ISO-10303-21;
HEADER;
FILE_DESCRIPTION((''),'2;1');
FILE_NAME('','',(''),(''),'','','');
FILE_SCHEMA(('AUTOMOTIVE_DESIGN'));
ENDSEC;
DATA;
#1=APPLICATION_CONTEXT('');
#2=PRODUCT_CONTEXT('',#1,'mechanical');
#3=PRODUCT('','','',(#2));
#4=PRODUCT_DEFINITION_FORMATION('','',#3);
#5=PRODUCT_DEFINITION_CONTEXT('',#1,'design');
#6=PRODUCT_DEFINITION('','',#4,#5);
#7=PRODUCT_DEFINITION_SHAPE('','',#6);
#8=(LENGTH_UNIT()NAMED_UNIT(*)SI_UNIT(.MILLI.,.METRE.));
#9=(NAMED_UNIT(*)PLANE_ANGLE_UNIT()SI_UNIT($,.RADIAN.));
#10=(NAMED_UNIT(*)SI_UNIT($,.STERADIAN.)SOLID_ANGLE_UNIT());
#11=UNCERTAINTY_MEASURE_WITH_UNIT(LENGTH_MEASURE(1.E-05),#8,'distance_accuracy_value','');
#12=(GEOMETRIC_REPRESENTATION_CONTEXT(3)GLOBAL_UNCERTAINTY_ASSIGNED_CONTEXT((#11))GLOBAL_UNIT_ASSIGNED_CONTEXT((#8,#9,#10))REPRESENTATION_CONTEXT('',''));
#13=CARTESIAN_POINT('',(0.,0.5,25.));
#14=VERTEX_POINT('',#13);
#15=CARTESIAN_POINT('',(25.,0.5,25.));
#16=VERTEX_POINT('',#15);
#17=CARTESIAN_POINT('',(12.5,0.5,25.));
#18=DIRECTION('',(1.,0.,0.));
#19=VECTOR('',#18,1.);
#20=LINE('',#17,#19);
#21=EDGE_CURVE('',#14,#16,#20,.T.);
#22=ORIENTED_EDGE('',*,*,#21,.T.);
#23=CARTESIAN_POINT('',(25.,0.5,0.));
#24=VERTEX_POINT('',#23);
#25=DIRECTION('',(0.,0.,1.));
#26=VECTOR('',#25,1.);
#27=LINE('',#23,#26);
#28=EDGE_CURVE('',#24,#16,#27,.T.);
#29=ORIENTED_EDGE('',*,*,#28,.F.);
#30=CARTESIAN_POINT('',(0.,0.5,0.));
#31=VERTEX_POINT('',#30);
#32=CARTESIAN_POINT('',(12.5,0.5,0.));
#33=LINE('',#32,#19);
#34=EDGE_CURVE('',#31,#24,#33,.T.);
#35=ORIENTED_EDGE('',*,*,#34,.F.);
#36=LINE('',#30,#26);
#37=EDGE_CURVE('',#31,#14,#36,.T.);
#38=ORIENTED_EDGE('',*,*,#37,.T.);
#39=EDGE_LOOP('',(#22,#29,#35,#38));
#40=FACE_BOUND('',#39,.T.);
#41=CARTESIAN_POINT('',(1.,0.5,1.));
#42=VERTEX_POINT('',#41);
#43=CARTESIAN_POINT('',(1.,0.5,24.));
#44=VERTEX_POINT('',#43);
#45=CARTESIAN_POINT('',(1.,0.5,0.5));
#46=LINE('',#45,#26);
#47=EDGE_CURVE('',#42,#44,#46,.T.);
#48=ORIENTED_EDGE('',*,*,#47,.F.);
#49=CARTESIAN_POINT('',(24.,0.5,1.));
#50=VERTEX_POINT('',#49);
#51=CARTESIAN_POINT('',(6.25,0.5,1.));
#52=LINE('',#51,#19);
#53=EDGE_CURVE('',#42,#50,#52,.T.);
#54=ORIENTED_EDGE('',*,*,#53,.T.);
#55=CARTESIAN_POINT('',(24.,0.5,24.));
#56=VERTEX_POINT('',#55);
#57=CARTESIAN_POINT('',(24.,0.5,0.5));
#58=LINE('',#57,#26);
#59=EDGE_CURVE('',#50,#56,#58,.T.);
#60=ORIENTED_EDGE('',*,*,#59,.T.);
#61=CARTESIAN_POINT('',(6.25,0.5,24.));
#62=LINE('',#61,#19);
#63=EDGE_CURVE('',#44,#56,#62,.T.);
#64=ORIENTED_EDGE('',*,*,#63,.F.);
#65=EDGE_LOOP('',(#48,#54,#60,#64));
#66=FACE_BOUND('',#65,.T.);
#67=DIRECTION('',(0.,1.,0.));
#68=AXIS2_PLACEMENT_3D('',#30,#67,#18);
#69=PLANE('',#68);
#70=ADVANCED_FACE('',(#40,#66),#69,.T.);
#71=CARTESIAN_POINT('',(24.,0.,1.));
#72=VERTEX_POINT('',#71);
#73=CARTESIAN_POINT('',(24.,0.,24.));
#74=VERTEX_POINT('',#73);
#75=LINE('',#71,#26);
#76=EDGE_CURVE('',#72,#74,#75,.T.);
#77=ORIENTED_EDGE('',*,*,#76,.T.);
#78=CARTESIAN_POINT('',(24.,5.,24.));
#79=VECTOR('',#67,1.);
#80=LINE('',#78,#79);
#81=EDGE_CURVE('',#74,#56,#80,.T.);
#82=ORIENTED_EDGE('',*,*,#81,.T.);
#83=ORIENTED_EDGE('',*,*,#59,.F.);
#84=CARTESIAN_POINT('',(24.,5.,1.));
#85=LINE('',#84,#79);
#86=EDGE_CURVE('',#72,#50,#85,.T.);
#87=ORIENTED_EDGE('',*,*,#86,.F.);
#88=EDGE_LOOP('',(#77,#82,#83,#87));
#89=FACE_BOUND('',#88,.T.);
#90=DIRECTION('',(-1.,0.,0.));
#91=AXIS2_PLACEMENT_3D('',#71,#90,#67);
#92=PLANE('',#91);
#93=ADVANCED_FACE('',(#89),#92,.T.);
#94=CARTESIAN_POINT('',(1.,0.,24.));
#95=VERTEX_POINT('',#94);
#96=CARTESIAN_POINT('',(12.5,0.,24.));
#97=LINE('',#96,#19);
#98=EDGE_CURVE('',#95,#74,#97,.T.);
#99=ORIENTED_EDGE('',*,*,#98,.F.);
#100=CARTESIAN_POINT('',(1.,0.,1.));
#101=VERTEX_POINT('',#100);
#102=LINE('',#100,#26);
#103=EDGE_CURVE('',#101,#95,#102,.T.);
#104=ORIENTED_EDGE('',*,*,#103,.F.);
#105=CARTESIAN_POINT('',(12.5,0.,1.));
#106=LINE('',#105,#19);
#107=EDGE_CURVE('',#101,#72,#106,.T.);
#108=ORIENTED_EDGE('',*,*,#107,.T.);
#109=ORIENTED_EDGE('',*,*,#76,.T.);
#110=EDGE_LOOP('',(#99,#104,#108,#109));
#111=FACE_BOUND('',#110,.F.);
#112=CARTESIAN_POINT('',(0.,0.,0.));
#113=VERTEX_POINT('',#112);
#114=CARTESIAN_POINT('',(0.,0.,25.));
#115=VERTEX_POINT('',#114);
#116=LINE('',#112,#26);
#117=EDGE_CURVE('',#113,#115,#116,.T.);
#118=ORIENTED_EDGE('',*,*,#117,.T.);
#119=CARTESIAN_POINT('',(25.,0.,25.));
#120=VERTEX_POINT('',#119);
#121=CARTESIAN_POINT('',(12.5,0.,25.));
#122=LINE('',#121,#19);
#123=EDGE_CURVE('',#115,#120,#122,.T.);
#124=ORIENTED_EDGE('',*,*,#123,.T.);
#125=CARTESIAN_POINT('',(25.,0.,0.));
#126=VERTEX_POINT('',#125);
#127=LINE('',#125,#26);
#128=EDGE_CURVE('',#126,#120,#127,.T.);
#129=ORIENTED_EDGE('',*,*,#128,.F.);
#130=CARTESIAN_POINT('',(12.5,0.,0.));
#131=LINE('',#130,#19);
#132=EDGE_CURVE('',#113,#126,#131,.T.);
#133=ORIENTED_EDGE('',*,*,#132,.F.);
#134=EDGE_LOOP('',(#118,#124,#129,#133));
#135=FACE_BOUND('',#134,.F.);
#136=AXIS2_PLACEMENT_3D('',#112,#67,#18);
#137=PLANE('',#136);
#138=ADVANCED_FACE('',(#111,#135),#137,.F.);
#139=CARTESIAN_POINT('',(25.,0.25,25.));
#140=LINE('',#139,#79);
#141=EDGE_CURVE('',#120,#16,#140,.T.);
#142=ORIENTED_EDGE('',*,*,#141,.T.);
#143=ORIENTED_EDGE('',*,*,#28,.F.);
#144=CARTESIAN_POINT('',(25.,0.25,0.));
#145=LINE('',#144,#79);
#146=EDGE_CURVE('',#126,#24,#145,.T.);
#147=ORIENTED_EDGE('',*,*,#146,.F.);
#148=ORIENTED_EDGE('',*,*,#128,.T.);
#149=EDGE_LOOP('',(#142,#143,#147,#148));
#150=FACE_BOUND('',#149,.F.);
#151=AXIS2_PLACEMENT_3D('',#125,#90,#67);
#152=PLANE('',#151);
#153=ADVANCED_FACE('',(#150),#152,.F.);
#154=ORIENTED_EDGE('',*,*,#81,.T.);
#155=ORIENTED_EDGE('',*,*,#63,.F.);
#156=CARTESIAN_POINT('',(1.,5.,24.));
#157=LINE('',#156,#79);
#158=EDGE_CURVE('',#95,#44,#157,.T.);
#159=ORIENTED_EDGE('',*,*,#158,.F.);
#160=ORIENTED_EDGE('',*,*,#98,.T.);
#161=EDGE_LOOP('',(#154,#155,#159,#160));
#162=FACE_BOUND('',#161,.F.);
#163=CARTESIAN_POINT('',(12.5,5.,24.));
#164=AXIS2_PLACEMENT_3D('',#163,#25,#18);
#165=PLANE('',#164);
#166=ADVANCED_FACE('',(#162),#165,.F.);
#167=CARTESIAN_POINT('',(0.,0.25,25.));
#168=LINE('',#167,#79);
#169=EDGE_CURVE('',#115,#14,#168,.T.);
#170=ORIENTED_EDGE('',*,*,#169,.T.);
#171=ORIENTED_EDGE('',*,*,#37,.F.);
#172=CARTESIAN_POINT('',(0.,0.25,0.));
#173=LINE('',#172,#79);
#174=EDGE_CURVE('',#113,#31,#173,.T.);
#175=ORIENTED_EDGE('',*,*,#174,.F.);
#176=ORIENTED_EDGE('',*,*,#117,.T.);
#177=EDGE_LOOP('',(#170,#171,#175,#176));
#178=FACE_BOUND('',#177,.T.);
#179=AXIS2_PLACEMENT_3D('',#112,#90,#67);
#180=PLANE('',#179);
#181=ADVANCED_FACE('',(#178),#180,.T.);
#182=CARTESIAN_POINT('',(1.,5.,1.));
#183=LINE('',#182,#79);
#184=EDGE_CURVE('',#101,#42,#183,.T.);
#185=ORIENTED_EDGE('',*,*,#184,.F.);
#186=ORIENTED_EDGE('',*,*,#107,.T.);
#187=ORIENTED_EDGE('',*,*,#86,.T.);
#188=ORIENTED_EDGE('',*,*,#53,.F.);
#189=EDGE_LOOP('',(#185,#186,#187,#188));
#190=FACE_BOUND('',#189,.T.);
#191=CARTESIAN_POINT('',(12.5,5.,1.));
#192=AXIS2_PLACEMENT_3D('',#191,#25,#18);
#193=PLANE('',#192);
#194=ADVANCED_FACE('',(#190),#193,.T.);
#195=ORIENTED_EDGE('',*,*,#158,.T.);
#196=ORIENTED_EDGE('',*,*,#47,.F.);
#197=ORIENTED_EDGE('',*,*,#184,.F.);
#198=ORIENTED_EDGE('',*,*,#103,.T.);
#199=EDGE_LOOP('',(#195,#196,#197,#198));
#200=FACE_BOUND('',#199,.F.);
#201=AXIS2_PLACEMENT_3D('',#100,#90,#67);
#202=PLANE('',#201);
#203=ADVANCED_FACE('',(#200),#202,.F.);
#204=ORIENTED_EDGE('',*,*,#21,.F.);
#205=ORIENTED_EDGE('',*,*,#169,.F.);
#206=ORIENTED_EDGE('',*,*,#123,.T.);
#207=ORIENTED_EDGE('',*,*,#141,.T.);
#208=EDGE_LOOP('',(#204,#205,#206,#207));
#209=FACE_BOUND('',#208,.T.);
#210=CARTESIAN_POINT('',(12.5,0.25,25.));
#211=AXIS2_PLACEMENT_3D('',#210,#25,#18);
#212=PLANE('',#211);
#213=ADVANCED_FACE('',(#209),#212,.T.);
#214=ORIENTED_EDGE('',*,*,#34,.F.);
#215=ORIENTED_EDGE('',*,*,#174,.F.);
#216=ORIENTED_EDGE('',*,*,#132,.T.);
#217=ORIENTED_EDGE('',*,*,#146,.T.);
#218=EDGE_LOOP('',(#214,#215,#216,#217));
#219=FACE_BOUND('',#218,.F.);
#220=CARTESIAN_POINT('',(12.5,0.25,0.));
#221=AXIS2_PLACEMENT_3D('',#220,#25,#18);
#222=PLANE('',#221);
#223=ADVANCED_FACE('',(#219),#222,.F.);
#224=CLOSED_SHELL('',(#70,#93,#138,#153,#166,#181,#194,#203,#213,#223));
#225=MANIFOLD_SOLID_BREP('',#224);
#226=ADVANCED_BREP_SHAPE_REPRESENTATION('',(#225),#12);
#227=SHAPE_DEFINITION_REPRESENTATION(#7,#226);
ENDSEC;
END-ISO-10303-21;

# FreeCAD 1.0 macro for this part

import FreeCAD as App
import Part
import Sketcher
Q = App.Units.Quantity


def add_polygon(sketch, points):
    """Adds a closed chain of lines whose ends are joined by coincident constraints."""
    first, n = sketch.GeometryCount, len(points)
    for a, b in zip(points, points[1:] + points[:1]):
        sketch.addGeometry(Part.LineSegment(App.Vector(*a, 0), App.Vector(*b, 0)), False)
    for i in range(n):
        sketch.addConstraint(Sketcher.Constraint("Coincident", first + i, 2, first + (i + 1) % n, 1))

doc = App.newDocument("Part")
params = doc.addObject("Spreadsheet::Sheet", "Params")
for row, (alias, value) in enumerate([
    ("sketch1_width", "23 mm"),
    ("sketch1_height", "10 mm"),
    ("pad1_length", "23 mm"),
    ("sketch2_width", "25 mm"),
    ("sketch2_height", "0.5 mm"),
    ("pad2_length", "25 mm"),
], start=1):
    params.set(f"A{row}", alias)
    params.set(f"B{row}", "=" + value)
    params.setAlias(f"B{row}", alias)

body = doc.addObject("PartDesign::Body", "Body")

sketch1 = body.newObject("Sketcher::SketchObject", "Sketch")
sketch1.AttachmentSupport = (doc.getObject("XY_Plane"), [""])
sketch1.MapMode = "FlatFace"
sketch1.AttachmentOffset = App.Placement(App.Vector(0, 0, 1), App.Rotation())
add_polygon(sketch1, [(1, 10), (1, 0), (24, 0), (24, 10)])
sketch1.addConstraint([
    Sketcher.Constraint("Vertical", 0),
    Sketcher.Constraint("Horizontal", 1),
    Sketcher.Constraint("Vertical", 2),
    Sketcher.Constraint("Horizontal", 3),
    Sketcher.Constraint("PointOnObject", 0, 2, -1),
    Sketcher.Constraint("DistanceX", 1, 1, 1, 2, Q("23 mm")),
    Sketcher.Constraint("DistanceY", 0, 2, 0, 1, Q("10 mm")),
    Sketcher.Constraint("DistanceX", -1, 1, 0, 2, Q("1 mm")),
])
sketch1.setExpression("Constraints[9]", "Params.sketch1_width")
sketch1.setExpression("Constraints[10]", "Params.sketch1_height")
pad1 = body.newObject("PartDesign::Pad", "Pad")
pad1.Profile = sketch1
pad1.setExpression("Length", "Params.pad1_length")
body2 = doc.addObject("PartDesign::Body", "Body001")

sketch2 = body2.newObject("Sketcher::SketchObject", "Sketch001")
sketch2.AttachmentSupport = (doc.getObject("XY_Plane001"), [""])
sketch2.MapMode = "FlatFace"
add_polygon(sketch2, [(0, 0.5), (0, 0), (25, 0), (25, 0.5)])
sketch2.addConstraint([
    Sketcher.Constraint("Vertical", 0),
    Sketcher.Constraint("Horizontal", 1),
    Sketcher.Constraint("Vertical", 2),
    Sketcher.Constraint("Horizontal", 3),
    Sketcher.Constraint("Coincident", 0, 2, -1, 1),
    Sketcher.Constraint("DistanceX", 1, 1, 1, 2, Q("25 mm")),
    Sketcher.Constraint("DistanceY", 0, 2, 0, 1, Q("0.5 mm")),
])
sketch2.setExpression("Constraints[9]", "Params.sketch2_width")
sketch2.setExpression("Constraints[10]", "Params.sketch2_height")
pad2 = body2.newObject("PartDesign::Pad", "Pad001")
pad2.Profile = sketch2
pad2.setExpression("Length", "Params.pad2_length")
doc.recompute()

boolean = body2.newObject("PartDesign::Boolean", "Boolean")
boolean.Type = "Cut"
boolean.addObjects([body])

doc.recompute()
